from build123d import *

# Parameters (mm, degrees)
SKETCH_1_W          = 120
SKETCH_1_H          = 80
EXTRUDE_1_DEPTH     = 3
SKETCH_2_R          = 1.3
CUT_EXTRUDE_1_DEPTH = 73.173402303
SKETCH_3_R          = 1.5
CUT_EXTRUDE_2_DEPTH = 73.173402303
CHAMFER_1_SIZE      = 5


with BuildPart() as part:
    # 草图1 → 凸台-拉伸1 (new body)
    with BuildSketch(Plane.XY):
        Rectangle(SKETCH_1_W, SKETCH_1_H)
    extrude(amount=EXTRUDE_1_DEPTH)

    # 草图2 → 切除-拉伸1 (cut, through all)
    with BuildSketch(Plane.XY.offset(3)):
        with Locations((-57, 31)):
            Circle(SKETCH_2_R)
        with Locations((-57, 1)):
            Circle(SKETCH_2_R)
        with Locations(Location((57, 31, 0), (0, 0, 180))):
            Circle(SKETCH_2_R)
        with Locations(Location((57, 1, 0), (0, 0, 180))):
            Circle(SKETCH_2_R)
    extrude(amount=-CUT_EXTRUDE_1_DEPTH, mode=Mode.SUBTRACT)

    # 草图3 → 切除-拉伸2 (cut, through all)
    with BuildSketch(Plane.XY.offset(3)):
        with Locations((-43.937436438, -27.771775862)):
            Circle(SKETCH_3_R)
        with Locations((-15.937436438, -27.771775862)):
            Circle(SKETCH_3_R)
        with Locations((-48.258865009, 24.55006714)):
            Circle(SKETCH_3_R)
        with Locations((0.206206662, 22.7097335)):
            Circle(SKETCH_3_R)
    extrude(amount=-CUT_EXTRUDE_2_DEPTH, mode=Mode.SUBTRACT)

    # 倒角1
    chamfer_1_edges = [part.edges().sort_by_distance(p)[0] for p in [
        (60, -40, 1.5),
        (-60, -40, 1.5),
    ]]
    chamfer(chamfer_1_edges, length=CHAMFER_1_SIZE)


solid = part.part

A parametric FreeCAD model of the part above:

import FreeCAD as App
import Part
import Sketcher
from FreeCAD import Vector
Q = App.Units.Quantity


def edges_at(feature, points):
    """Names of the edges that pass closest to the given points."""
    edges = feature.Shape.Edges
    near = lambda p: min(range(len(edges)), key=lambda i: edges[i].distToShape(Part.Vertex(*p))[0])
    return sorted({f"Edge{near(p) + 1}" for p in points})

doc = App.newDocument("Part")
body = doc.addObject("PartDesign::Body", "Body")

# Sketch on XY plane
sketch1 = body.newObject("Sketcher::SketchObject", "Sketch")
sketch1.AttachmentSupport = (doc.getObject("XY_Plane"), [""])
sketch1.MapMode = "FlatFace"
sketch1.addGeometry([
    Part.LineSegment(Vector(-60, 40, 0), Vector(-60, -40, 0)),
    Part.LineSegment(Vector(-60, -40, 0), Vector(60, -40, 0)),
    Part.LineSegment(Vector(60, -40, 0), Vector(60, 40, 0)),
    Part.LineSegment(Vector(60, 40, 0), Vector(-60, 40, 0)),
], False)
sketch1.addConstraint([
    Sketcher.Constraint("Coincident", 0, 2, 1, 1),
    Sketcher.Constraint("Coincident", 1, 2, 2, 1),
    Sketcher.Constraint("Coincident", 2, 2, 3, 1),
    Sketcher.Constraint("Coincident", 3, 2, 0, 1),
    Sketcher.Constraint("Vertical", 0),
    Sketcher.Constraint("Horizontal", 1),
    Sketcher.Constraint("Vertical", 2),
    Sketcher.Constraint("Horizontal", 3),
    Sketcher.Constraint("Symmetric", 0, 2, 2, 2, -1, 1),
    Sketcher.Constraint("DistanceX", 1, 1, 1, 2, Q("120 mm")),
    Sketcher.Constraint("DistanceY", 0, 2, 0, 1, Q("80 mm")),
])
pad1 = body.newObject("PartDesign::Pad", "Pad")
pad1.Profile = sketch1
pad1.Length = 3

# Sketch on XY plane
sketch2 = body.newObject("Sketcher::SketchObject", "Sketch001")
sketch2.AttachmentSupport = (doc.getObject("XY_Plane"), [""])
sketch2.MapMode = "FlatFace"
sketch2.AttachmentOffset = App.Placement(Vector(0, 0, 3), App.Rotation())
sketch2.addGeometry([
    Part.Circle(Vector(-57, 31, 0), Vector(0, 0, 1), 1.3),
    Part.Circle(Vector(-57, 1, 0), Vector(0, 0, 1), 1.3),
    Part.Circle(Vector(57, 31, 0), Vector(0, 0, 1), 1.3),
    Part.Circle(Vector(57, 1, 0), Vector(0, 0, 1), 1.3),
], False)
sketch2.addConstraint([
    Sketcher.Constraint("Equal", 0, 1),
    Sketcher.Constraint("Equal", 1, 2),
    Sketcher.Constraint("Equal", 2, 3),
    Sketcher.Constraint("Symmetric", 0, 3, 2, 3, -2),
    Sketcher.Constraint("Symmetric", 1, 3, 3, 3, -2),
    Sketcher.Constraint("Vertical", 0, 3, 1, 3),
    Sketcher.Constraint("Diameter", 0, Q("2.6 mm")),
    Sketcher.Constraint("DistanceX", 0, 3, -1, 1, Q("57 mm")),
    Sketcher.Constraint("DistanceY", -1, 1, 0, 3, Q("31 mm")),
    Sketcher.Constraint("DistanceY", -1, 1, 1, 3, Q("1 mm")),
])
pocket1 = body.newObject("PartDesign::Pocket", "Pocket")
pocket1.Profile = sketch2
pocket1.Type = "ThroughAll"

# Sketch on XY plane
sketch3 = body.newObject("Sketcher::SketchObject", "Sketch002")
sketch3.AttachmentSupport = (doc.getObject("XY_Plane"), [""])
sketch3.MapMode = "FlatFace"
sketch3.AttachmentOffset = App.Placement(Vector(0, 0, 3), App.Rotation())
sketch3.addGeometry([
    Part.Circle(Vector(-43.9, -27.8, 0), Vector(0, 0, 1), 1.5),
    Part.Circle(Vector(-15.9, -27.8, 0), Vector(0, 0, 1), 1.5),
    Part.Circle(Vector(-48.3, 24.6, 0), Vector(0, 0, 1), 1.5),
    Part.Circle(Vector(0.2, 22.7, 0), Vector(0, 0, 1), 1.5),
], False)
sketch3.addConstraint([
    Sketcher.Constraint("Equal", 0, 1),
    Sketcher.Constraint("Equal", 1, 2),
    Sketcher.Constraint("Equal", 2, 3),
    Sketcher.Constraint("Horizontal", 0, 3, 1, 3),
    Sketcher.Constraint("Diameter", 0, Q("3 mm")),
    Sketcher.Constraint("DistanceX", 0, 3, 1, 3, Q("28 mm")),
    Sketcher.Constraint("DistanceX", 2, 3, 0, 3, Q("4.321429 mm")),
    Sketcher.Constraint("DistanceX", 2, 3, 3, 3, Q("48.465072 mm")),
    Sketcher.Constraint("DistanceY", 1, 3, 3, 3, Q("50.481509 mm")),
    Sketcher.Constraint("DistanceX", 0, 3, -1, 1, Q("43.937436 mm")),
    Sketcher.Constraint("DistanceY", 0, 3, -1, 1, Q("27.771776 mm")),
    Sketcher.Constraint("DistanceY", -1, 1, 2, 3, Q("24.550067 mm")),
])
pocket2 = body.newObject("PartDesign::Pocket", "Pocket001")
pocket2.Profile = sketch3
pocket2.Type = "ThroughAll"
doc.recompute()

chamfer = body.newObject("PartDesign::Chamfer", "Chamfer")
chamfer.Base = (pocket2, edges_at(pocket2, [(60, -40, 1.5), (-60, -40, 1.5)]))
chamfer.Size = 5

doc.recompute()
